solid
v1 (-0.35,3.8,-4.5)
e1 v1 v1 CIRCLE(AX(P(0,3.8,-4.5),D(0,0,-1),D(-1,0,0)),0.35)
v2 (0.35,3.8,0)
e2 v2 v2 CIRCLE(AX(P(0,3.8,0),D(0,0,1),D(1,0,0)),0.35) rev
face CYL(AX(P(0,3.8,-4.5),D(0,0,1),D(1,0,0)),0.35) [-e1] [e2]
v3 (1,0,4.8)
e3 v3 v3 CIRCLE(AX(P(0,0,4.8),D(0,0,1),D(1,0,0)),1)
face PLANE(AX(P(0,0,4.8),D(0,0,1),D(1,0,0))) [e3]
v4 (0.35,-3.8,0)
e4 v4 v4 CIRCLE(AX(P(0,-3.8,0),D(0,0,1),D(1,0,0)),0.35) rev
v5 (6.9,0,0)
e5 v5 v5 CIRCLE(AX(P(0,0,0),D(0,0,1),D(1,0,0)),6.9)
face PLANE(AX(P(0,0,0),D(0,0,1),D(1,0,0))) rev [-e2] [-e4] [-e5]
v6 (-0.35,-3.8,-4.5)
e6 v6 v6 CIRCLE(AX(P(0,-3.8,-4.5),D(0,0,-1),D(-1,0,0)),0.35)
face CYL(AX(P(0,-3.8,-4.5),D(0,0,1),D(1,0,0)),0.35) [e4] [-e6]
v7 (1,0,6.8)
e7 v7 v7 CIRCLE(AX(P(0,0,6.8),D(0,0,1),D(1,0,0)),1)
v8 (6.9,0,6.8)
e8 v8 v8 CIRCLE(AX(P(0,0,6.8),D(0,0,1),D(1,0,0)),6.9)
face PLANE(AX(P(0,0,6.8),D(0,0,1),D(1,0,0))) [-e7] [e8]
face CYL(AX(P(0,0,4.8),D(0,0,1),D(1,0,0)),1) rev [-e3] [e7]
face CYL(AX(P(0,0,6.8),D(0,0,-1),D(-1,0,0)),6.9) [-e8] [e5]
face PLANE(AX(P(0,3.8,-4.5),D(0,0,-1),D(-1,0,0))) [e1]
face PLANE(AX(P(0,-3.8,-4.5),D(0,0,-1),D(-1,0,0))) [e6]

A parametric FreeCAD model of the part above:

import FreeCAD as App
import Part
import Sketcher

doc = App.newDocument("Part")
params = doc.addObject("Spreadsheet::Sheet", "Params")
for row, (alias, value) in enumerate([
    ("sketch1_diameter", "13.8 mm"),
    ("pad1_length", "6.8 mm"),
    ("sketch2_diameter", "2 mm"),
    ("pocket1_length", "2 mm"),
    ("sketch3_diameter", "0.7 mm"),
    ("pad2_length", "4.5 mm"),
], start=1):
    params.set(f"A{row}", alias)
    params.set(f"B{row}", "=" + value)
    params.setAlias(f"B{row}", alias)

body = doc.addObject("PartDesign::Body", "Body")

sketch1 = body.newObject("Sketcher::SketchObject", "Sketch")
sketch1.AttachmentSupport = (doc.getObject("XY_Plane"), [""])
sketch1.MapMode = "FlatFace"
sketch1.addGeometry(Part.Circle(App.Vector(0, 0, 0), App.Vector(0, 0, 1), 7), False)
sketch1.addConstraint(Sketcher.Constraint("Coincident", 0, 3, -1, 1))
sketch1.addConstraint(Sketcher.Constraint("Diameter", 0, 13.8))
sketch1.setExpression("Constraints[1]", "Params.sketch1_diameter")
pad1 = body.newObject("PartDesign::Pad", "Pad")
pad1.Profile = sketch1
pad1.setExpression("Length", "Params.pad1_length")

sketch2 = body.newObject("Sketcher::SketchObject", "Sketch001")
sketch2.AttachmentSupport = (doc.getObject("XY_Plane"), [""])
sketch2.MapMode = "FlatFace"
sketch2.AttachmentOffset = App.Placement(App.Vector(0, 0, 6.8), App.Rotation())
sketch2.addGeometry(Part.Circle(App.Vector(0, 0, 0), App.Vector(0, 0, 1), 1), False)
sketch2.addConstraint(Sketcher.Constraint("Coincident", 0, 3, -1, 1))
sketch2.addConstraint(Sketcher.Constraint("Diameter", 0, 2.0))
sketch2.setExpression("Constraints[1]", "Params.sketch2_diameter")
pocket1 = body.newObject("PartDesign::Pocket", "Pocket")
pocket1.Profile = sketch2
pocket1.setExpression("Length", "Params.pocket1_length")

sketch3 = body.newObject("Sketcher::SketchObject", "Sketch002")
sketch3.AttachmentSupport = (doc.getObject("XY_Plane"), [""])
sketch3.MapMode = "FlatFace"
sketch3.addGeometry(Part.Circle(App.Vector(0, 3.8, 0), App.Vector(0, 0, 1), 0.35), False)
sketch3.addGeometry(Part.Circle(App.Vector(0, -3.8, 0), App.Vector(0, 0, 1), 0.35), False)
sketch3.addConstraint(Sketcher.Constraint("Equal", 0, 1))
sketch3.addConstraint(Sketcher.Constraint("Symmetric", 0, 3, 1, 3, -1, 1))
sketch3.addConstraint(Sketcher.Constraint("PointOnObject", 0, 3, -2))
sketch3.addConstraint(Sketcher.Constraint("Diameter", 0, 0.7))
sketch3.addConstraint(Sketcher.Constraint("DistanceY", -1, 1, 0, 3, 3.8))
sketch3.setExpression("Constraints[3]", "Params.sketch3_diameter")
pad2 = body.newObject("PartDesign::Pad", "Pad001")
pad2.Profile = sketch3
pad2.setExpression("Length", "Params.pad2_length")
pad2.Reversed = True

doc.recompute()
